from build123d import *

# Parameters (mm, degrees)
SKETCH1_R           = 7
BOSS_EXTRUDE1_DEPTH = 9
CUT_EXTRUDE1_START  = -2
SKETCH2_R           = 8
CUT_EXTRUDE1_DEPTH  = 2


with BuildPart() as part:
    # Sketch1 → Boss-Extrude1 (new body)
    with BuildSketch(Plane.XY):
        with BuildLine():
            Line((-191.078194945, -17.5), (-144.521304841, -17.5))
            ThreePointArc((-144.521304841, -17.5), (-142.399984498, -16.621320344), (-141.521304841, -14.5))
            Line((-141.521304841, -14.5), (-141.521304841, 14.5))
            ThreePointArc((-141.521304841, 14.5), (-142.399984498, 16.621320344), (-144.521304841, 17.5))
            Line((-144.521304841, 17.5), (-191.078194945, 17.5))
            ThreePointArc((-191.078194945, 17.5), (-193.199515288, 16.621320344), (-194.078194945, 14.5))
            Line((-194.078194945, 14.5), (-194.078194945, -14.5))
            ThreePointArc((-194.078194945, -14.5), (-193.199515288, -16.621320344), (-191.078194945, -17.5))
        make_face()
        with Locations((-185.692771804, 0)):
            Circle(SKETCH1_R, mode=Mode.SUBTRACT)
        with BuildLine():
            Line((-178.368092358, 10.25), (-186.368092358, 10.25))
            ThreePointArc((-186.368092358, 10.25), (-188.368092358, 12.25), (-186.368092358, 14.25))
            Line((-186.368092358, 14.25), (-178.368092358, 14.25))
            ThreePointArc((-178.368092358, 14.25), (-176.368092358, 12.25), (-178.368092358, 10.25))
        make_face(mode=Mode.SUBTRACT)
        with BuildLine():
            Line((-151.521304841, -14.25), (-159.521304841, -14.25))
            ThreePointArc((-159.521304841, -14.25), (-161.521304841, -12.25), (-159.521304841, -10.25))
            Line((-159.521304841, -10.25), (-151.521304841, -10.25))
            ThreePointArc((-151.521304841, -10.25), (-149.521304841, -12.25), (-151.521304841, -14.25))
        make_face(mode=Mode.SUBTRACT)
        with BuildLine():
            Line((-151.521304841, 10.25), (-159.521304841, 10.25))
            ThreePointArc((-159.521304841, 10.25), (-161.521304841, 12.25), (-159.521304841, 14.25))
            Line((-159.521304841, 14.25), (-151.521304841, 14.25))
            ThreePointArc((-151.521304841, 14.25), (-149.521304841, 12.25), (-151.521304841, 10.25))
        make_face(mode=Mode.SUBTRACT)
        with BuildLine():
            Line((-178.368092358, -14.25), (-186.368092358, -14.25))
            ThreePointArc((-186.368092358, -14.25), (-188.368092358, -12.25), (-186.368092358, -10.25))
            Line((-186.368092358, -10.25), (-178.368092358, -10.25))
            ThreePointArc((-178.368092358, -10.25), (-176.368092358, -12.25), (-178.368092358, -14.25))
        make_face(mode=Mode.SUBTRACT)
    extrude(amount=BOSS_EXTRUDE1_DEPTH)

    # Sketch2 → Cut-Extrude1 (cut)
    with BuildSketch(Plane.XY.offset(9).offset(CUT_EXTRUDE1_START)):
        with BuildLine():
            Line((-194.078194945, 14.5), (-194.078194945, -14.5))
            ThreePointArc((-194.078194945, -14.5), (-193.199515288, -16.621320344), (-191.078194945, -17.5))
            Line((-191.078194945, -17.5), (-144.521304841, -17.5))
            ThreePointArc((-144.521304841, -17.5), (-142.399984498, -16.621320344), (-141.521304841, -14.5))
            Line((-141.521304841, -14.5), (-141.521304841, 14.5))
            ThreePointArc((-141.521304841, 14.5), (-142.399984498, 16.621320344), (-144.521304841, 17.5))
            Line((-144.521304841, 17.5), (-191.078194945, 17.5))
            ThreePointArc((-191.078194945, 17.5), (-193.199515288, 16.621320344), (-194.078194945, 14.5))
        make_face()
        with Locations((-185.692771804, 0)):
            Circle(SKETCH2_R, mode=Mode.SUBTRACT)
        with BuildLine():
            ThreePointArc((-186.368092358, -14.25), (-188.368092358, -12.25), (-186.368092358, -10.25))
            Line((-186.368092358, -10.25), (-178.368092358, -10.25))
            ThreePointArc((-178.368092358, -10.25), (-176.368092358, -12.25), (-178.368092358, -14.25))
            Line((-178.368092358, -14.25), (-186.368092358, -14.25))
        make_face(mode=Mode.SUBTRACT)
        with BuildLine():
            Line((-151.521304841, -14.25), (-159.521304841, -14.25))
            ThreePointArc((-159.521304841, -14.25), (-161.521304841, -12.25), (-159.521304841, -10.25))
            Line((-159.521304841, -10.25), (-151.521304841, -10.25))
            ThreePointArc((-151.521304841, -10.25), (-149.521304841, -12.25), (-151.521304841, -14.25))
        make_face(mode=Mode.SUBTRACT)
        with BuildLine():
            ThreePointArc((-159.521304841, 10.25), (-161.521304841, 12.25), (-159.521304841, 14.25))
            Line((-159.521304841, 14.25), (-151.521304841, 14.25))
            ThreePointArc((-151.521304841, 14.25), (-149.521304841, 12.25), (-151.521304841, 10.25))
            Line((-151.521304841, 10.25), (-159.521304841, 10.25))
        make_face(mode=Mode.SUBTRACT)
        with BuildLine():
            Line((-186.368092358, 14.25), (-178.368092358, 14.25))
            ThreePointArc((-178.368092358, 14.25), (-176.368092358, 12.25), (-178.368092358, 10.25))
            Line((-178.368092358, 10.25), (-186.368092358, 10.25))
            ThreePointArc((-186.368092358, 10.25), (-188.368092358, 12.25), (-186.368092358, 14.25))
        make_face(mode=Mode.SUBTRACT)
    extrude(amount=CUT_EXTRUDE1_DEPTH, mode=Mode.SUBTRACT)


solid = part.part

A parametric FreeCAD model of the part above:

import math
import FreeCAD as App
import Part
import Sketcher
Q = App.Units.Quantity

doc = App.newDocument("Part")
body = doc.addObject("PartDesign::Body", "Body")

# Sketch on XY plane
sketch1 = body.newObject("Sketcher::SketchObject", "Sketch")
sketch1.AttachmentSupport = (doc.getObject("XY_Plane"), [""])
sketch1.MapMode = "FlatFace"
sketch1.addGeometry([
    Part.LineSegment(App.Vector(-191.1, -17.5, 0), App.Vector(-144.5, -17.5, 0)),  # 0
    Part.ArcOfCircle(Part.Circle(App.Vector(-144.5, -14.5, 0), App.Vector(0, 0, 1), 3), math.radians(-90), math.radians(0)),  # 1
    Part.LineSegment(App.Vector(-141.5, -14.5, 0), App.Vector(-141.5, 14.5, 0)),  # 2
    Part.ArcOfCircle(Part.Circle(App.Vector(-144.5, 14.5, 0), App.Vector(0, 0, 1), 3), math.radians(0), math.radians(90)),  # 3
    Part.LineSegment(App.Vector(-144.5, 17.5, 0), App.Vector(-191.1, 17.5, 0)),  # 4
    Part.ArcOfCircle(Part.Circle(App.Vector(-191.1, 14.5, 0), App.Vector(0, 0, 1), 3), math.radians(90), math.radians(180)),  # 5
    Part.LineSegment(App.Vector(-194.1, 14.5, 0), App.Vector(-194.1, -14.5, 0)),  # 6
    Part.ArcOfCircle(Part.Circle(App.Vector(-191.1, -14.5, 0), App.Vector(0, 0, 1), 3), math.radians(180), math.radians(270)),  # 7
    Part.ArcOfCircle(Part.Circle(App.Vector(-178.4, -12.2, 0), App.Vector(0, 0, 1), 2), math.radians(-90), math.radians(90)),  # 8
    Part.LineSegment(App.Vector(-178.4, -14.2, 0), App.Vector(-186.4, -14.2, 0)),  # 9
    Part.ArcOfCircle(Part.Circle(App.Vector(-186.4, -12.2, 0), App.Vector(0, 0, 1), 2), math.radians(90), math.radians(270)),  # 10
    Part.LineSegment(App.Vector(-186.4, -10.2, 0), App.Vector(-178.4, -10.2, 0)),  # 11
    Part.ArcOfCircle(Part.Circle(App.Vector(-151.5, -12.2, 0), App.Vector(0, 0, 1), 2), math.radians(-90), math.radians(90)),  # 12
    Part.LineSegment(App.Vector(-151.5, -14.2, 0), App.Vector(-159.5, -14.2, 0)),  # 13
    Part.ArcOfCircle(Part.Circle(App.Vector(-159.5, -12.2, 0), App.Vector(0, 0, 1), 2), math.radians(90), math.radians(270)),  # 14
    Part.LineSegment(App.Vector(-159.5, -10.2, 0), App.Vector(-151.5, -10.2, 0)),  # 15
    Part.Circle(App.Vector(-185.7, 0, 0), App.Vector(0, 0, 1), 7),  # 16
    Part.ArcOfCircle(Part.Circle(App.Vector(-178.4, 12.2, 0), App.Vector(0, 0, 1), 2), math.radians(-90), math.radians(90)),  # 17
    Part.LineSegment(App.Vector(-178.4, 10.2, 0), App.Vector(-186.4, 10.2, 0)),  # 18
    Part.ArcOfCircle(Part.Circle(App.Vector(-186.4, 12.2, 0), App.Vector(0, 0, 1), 2), math.radians(90), math.radians(270)),  # 19
    Part.LineSegment(App.Vector(-186.4, 14.2, 0), App.Vector(-178.4, 14.2, 0)),  # 20
    Part.ArcOfCircle(Part.Circle(App.Vector(-151.5, 12.2, 0), App.Vector(0, 0, 1), 2), math.radians(-90), math.radians(90)),  # 21
    Part.LineSegment(App.Vector(-151.5, 10.2, 0), App.Vector(-159.5, 10.2, 0)),  # 22
    Part.ArcOfCircle(Part.Circle(App.Vector(-159.5, 12.2, 0), App.Vector(0, 0, 1), 2), math.radians(90), math.radians(270)),  # 23
    Part.LineSegment(App.Vector(-159.5, 14.2, 0), App.Vector(-151.5, 14.2, 0)),  # 24
], False)
sketch1.addConstraint([
    Sketcher.Constraint("Tangent", 0, 2, 1, 1),
    Sketcher.Constraint("Tangent", 1, 2, 2, 1),
    Sketcher.Constraint("Tangent", 2, 2, 3, 1),
    Sketcher.Constraint("Tangent", 3, 2, 4, 1),
    Sketcher.Constraint("Tangent", 4, 2, 5, 1),
    Sketcher.Constraint("Tangent", 5, 2, 6, 1),
    Sketcher.Constraint("Tangent", 6, 2, 7, 1),
    Sketcher.Constraint("Tangent", 7, 2, 0, 1),
    Sketcher.Constraint("Tangent", 8, 1, 9, 1),
    Sketcher.Constraint("Tangent", 9, 2, 10, 2),
    Sketcher.Constraint("Tangent", 10, 1, 11, 1),
    Sketcher.Constraint("Tangent", 11, 2, 8, 2),
    Sketcher.Constraint("Tangent", 12, 1, 13, 1),
    Sketcher.Constraint("Tangent", 13, 2, 14, 2),
    Sketcher.Constraint("Tangent", 14, 1, 15, 1),
    Sketcher.Constraint("Tangent", 15, 2, 12, 2),
    Sketcher.Constraint("Tangent", 17, 1, 18, 1),
    Sketcher.Constraint("Tangent", 18, 2, 19, 2),
    Sketcher.Constraint("Tangent", 19, 1, 20, 1),
    Sketcher.Constraint("Tangent", 20, 2, 17, 2),
    Sketcher.Constraint("Tangent", 21, 1, 22, 1),
    Sketcher.Constraint("Tangent", 22, 2, 23, 2),
    Sketcher.Constraint("Tangent", 23, 1, 24, 1),
    Sketcher.Constraint("Tangent", 24, 2, 21, 2),
    Sketcher.Constraint("Horizontal", 0),
    Sketcher.Constraint("Vertical", 2),
    Sketcher.Constraint("Horizontal", 4),
    Sketcher.Constraint("Vertical", 6),
    Sketcher.Constraint("Horizontal", 9),
    Sketcher.Constraint("Horizontal", 11),
    Sketcher.Constraint("Horizontal", 13),
    Sketcher.Constraint("Horizontal", 15),
    Sketcher.Constraint("Horizontal", 18),
    Sketcher.Constraint("Horizontal", 20),
    Sketcher.Constraint("Horizontal", 22),
    Sketcher.Constraint("Horizontal", 24),
    Sketcher.Constraint("Equal", 1, 3),
    Sketcher.Constraint("Equal", 3, 5),
    Sketcher.Constraint("Equal", 5, 7),
    Sketcher.Constraint("Equal", 10, 12),
    Sketcher.Constraint("Equal", 14, 17),
    Sketcher.Constraint("Equal", 19, 21),
    Sketcher.Constraint("Symmetric", 8, 3, 17, 3, -1),
    Sketcher.Constraint("Symmetric", 12, 3, 21, 3, -1),
    Sketcher.Constraint("PointOnObject", 16, 3, -1),
    Sketcher.Constraint("Horizontal", 10, 3, 12, 3),
    Sketcher.Constraint("Vertical", 10, 3, 19, 3),
    Sketcher.Constraint("Vertical", 14, 3, 23, 3),
    Sketcher.Constraint("Equal", 11, 13),
    Sketcher.Constraint("Diameter", 16, Q("14 mm")),
    Sketcher.Constraint("Radius", 1, Q("3 mm")),
    Sketcher.Constraint("Radius", 8, Q("2 mm")),
    Sketcher.Constraint("DistanceX", 9, 2, 9, 1, Q("8 mm")),
    Sketcher.Constraint("DistanceY", 2, 1, 2, 2, Q("29 mm")),
    Sketcher.Constraint("DistanceX", 12, 3, 1, 3, Q("7 mm")),
    Sketcher.Constraint("DistanceY", 1, 3, -1, 1, Q("14.5 mm")),
    Sketcher.Constraint("DistanceY", 8, 3, 17, 3, Q("24.5 mm")),
    Sketcher.Constraint("DistanceX", 0, 1, 0, 2, Q("46.55689 mm")),
    Sketcher.Constraint("DistanceX", 16, 3, -1, 1, Q("185.692772 mm")),
    Sketcher.Constraint("DistanceX", 10, 3, 16, 3, Q("0.675321 mm")),
    Sketcher.Constraint("DistanceX", 1, 3, -1, 1, Q("144.521305 mm")),
])
pad1 = body.newObject("PartDesign::Pad", "Pad")
pad1.Profile = sketch1
pad1.Length = 9

# Sketch on XY plane
sketch2 = body.newObject("Sketcher::SketchObject", "Sketch001")
sketch2.AttachmentSupport = (doc.getObject("XY_Plane"), [""])
sketch2.MapMode = "FlatFace"
sketch2.AttachmentOffset = App.Placement(App.Vector(0, 0, 7), App.Rotation())
sketch2.addGeometry([
    Part.LineSegment(App.Vector(-194.1, 14.5, 0), App.Vector(-194.1, -14.5, 0)),  # 0
    Part.ArcOfCircle(Part.Circle(App.Vector(-191.1, -14.5, 0), App.Vector(0, 0, 1), 3), math.radians(180), math.radians(270)),  # 1
    Part.LineSegment(App.Vector(-191.1, -17.5, 0), App.Vector(-144.5, -17.5, 0)),  # 2
    Part.ArcOfCircle(Part.Circle(App.Vector(-144.5, -14.5, 0), App.Vector(0, 0, 1), 3), math.radians(-90), math.radians(0)),  # 3
    Part.LineSegment(App.Vector(-141.5, -14.5, 0), App.Vector(-141.5, 14.5, 0)),  # 4
    Part.ArcOfCircle(Part.Circle(App.Vector(-144.5, 14.5, 0), App.Vector(0, 0, 1), 3), math.radians(0), math.radians(90)),  # 5
    Part.LineSegment(App.Vector(-144.5, 17.5, 0), App.Vector(-191.1, 17.5, 0)),  # 6
    Part.ArcOfCircle(Part.Circle(App.Vector(-191.1, 14.5, 0), App.Vector(0, 0, 1), 3), math.radians(90), math.radians(180)),  # 7
    Part.LineSegment(App.Vector(-178.4, -14.2, 0), App.Vector(-186.4, -14.2, 0)),  # 8
    Part.ArcOfCircle(Part.Circle(App.Vector(-186.4, -12.2, 0), App.Vector(0, 0, 1), 2), math.radians(90), math.radians(270)),  # 9
    Part.LineSegment(App.Vector(-186.4, -10.2, 0), App.Vector(-178.4, -10.2, 0)),  # 10
    Part.ArcOfCircle(Part.Circle(App.Vector(-178.4, -12.2, 0), App.Vector(0, 0, 1), 2), math.radians(-90), math.radians(90)),  # 11
    Part.ArcOfCircle(Part.Circle(App.Vector(-151.5, -12.2, 0), App.Vector(0, 0, 1), 2), math.radians(-90), math.radians(90)),  # 12
    Part.LineSegment(App.Vector(-151.5, -14.2, 0), App.Vector(-159.5, -14.2, 0)),  # 13
    Part.ArcOfCircle(Part.Circle(App.Vector(-159.5, -12.2, 0), App.Vector(0, 0, 1), 2), math.radians(90), math.radians(270)),  # 14
    Part.LineSegment(App.Vector(-159.5, -10.2, 0), App.Vector(-151.5, -10.2, 0)),  # 15
    Part.Circle(App.Vector(-185.7, 0, 0), App.Vector(0, 0, 1), 8),  # 16
    Part.ArcOfCircle(Part.Circle(App.Vector(-186.4, 12.2, 0), App.Vector(0, 0, 1), 2), math.radians(90), math.radians(270)),  # 17
    Part.LineSegment(App.Vector(-186.4, 14.2, 0), App.Vector(-178.4, 14.2, 0)),  # 18
    Part.ArcOfCircle(Part.Circle(App.Vector(-178.4, 12.2, 0), App.Vector(0, 0, 1), 2), math.radians(-90), math.radians(90)),  # 19
    Part.LineSegment(App.Vector(-178.4, 10.2, 0), App.Vector(-186.4, 10.2, 0)),  # 20
    Part.LineSegment(App.Vector(-151.5, 10.2, 0), App.Vector(-159.5, 10.2, 0)),  # 21
    Part.ArcOfCircle(Part.Circle(App.Vector(-159.5, 12.2, 0), App.Vector(0, 0, 1), 2), math.radians(90), math.radians(270)),  # 22
    Part.LineSegment(App.Vector(-159.5, 14.2, 0), App.Vector(-151.5, 14.2, 0)),  # 23
    Part.ArcOfCircle(Part.Circle(App.Vector(-151.5, 12.2, 0), App.Vector(0, 0, 1), 2), math.radians(-90), math.radians(90)),  # 24
], False)
sketch2.addConstraint([
    Sketcher.Constraint("Tangent", 0, 2, 1, 1),
    Sketcher.Constraint("Tangent", 1, 2, 2, 1),
    Sketcher.Constraint("Tangent", 2, 2, 3, 1),
    Sketcher.Constraint("Tangent", 3, 2, 4, 1),
    Sketcher.Constraint("Tangent", 4, 2, 5, 1),
    Sketcher.Constraint("Tangent", 5, 2, 6, 1),
    Sketcher.Constraint("Tangent", 6, 2, 7, 1),
    Sketcher.Constraint("Tangent", 7, 2, 0, 1),
    Sketcher.Constraint("Tangent", 8, 2, 9, 2),
    Sketcher.Constraint("Tangent", 9, 1, 10, 1),
    Sketcher.Constraint("Tangent", 10, 2, 11, 2),
    Sketcher.Constraint("Tangent", 11, 1, 8, 1),
    Sketcher.Constraint("Tangent", 12, 1, 13, 1),
    Sketcher.Constraint("Tangent", 13, 2, 14, 2),
    Sketcher.Constraint("Tangent", 14, 1, 15, 1),
    Sketcher.Constraint("Tangent", 15, 2, 12, 2),
    Sketcher.Constraint("Tangent", 17, 1, 18, 1),
    Sketcher.Constraint("Tangent", 18, 2, 19, 2),
    Sketcher.Constraint("Tangent", 19, 1, 20, 1),
    Sketcher.Constraint("Tangent", 20, 2, 17, 2),
    Sketcher.Constraint("Tangent", 21, 2, 22, 2),
    Sketcher.Constraint("Tangent", 22, 1, 23, 1),
    Sketcher.Constraint("Tangent", 23, 2, 24, 2),
    Sketcher.Constraint("Tangent", 24, 1, 21, 1),
    Sketcher.Constraint("Vertical", 0),
    Sketcher.Constraint("Horizontal", 2),
    Sketcher.Constraint("Vertical", 4),
    Sketcher.Constraint("Horizontal", 6),
    Sketcher.Constraint("Horizontal", 8),
    Sketcher.Constraint("Horizontal", 10),
    Sketcher.Constraint("Horizontal", 13),
    Sketcher.Constraint("Horizontal", 15),
    Sketcher.Constraint("Horizontal", 18),
    Sketcher.Constraint("Horizontal", 20),
    Sketcher.Constraint("Horizontal", 21),
    Sketcher.Constraint("Horizontal", 23),
    Sketcher.Constraint("Equal", 1, 3),
    Sketcher.Constraint("Equal", 3, 5),
    Sketcher.Constraint("Equal", 5, 7),
    Sketcher.Constraint("Equal", 11, 12),
    Sketcher.Constraint("Equal", 14, 17),
    Sketcher.Constraint("Equal", 19, 22),
    Sketcher.Constraint("Symmetric", 9, 3, 17, 3, -1),
    Sketcher.Constraint("Symmetric", 14, 3, 22, 3, -1),
    Sketcher.Constraint("PointOnObject", 16, 3, -1),
    Sketcher.Constraint("Horizontal", 11, 3, 12, 3),
    Sketcher.Constraint("Vertical", 11, 3, 19, 3),
    Sketcher.Constraint("Vertical", 12, 3, 24, 3),
    Sketcher.Constraint("Equal", 10, 13),
    Sketcher.Constraint("Diameter", 16, Q("16 mm")),
    Sketcher.Constraint("Radius", 1, Q("3 mm")),
    Sketcher.Constraint("Radius", 9, Q("2 mm")),
    Sketcher.Constraint("DistanceX", 8, 2, 8, 1, Q("8 mm")),
    Sketcher.Constraint("DistanceY", 0, 2, 0, 1, Q("29 mm")),
    Sketcher.Constraint("DistanceX", 12, 3, 3, 3, Q("7 mm")),
    Sketcher.Constraint("DistanceY", 1, 3, -1, 1, Q("14.5 mm")),
    Sketcher.Constraint("DistanceY", 9, 3, 17, 3, Q("24.5 mm")),
    Sketcher.Constraint("DistanceX", 2, 1, 2, 2, Q("46.55689 mm")),
    Sketcher.Constraint("DistanceX", 16, 3, -1, 1, Q("185.692772 mm")),
    Sketcher.Constraint("DistanceX", 9, 3, 16, 3, Q("0.675321 mm")),
    Sketcher.Constraint("DistanceX", 1, 3, -1, 1, Q("191.078195 mm")),
])
pocket1 = body.newObject("PartDesign::Pocket", "Pocket")
pocket1.Profile = sketch2
pocket1.Length = 2
pocket1.Reversed = True

doc.recompute()
